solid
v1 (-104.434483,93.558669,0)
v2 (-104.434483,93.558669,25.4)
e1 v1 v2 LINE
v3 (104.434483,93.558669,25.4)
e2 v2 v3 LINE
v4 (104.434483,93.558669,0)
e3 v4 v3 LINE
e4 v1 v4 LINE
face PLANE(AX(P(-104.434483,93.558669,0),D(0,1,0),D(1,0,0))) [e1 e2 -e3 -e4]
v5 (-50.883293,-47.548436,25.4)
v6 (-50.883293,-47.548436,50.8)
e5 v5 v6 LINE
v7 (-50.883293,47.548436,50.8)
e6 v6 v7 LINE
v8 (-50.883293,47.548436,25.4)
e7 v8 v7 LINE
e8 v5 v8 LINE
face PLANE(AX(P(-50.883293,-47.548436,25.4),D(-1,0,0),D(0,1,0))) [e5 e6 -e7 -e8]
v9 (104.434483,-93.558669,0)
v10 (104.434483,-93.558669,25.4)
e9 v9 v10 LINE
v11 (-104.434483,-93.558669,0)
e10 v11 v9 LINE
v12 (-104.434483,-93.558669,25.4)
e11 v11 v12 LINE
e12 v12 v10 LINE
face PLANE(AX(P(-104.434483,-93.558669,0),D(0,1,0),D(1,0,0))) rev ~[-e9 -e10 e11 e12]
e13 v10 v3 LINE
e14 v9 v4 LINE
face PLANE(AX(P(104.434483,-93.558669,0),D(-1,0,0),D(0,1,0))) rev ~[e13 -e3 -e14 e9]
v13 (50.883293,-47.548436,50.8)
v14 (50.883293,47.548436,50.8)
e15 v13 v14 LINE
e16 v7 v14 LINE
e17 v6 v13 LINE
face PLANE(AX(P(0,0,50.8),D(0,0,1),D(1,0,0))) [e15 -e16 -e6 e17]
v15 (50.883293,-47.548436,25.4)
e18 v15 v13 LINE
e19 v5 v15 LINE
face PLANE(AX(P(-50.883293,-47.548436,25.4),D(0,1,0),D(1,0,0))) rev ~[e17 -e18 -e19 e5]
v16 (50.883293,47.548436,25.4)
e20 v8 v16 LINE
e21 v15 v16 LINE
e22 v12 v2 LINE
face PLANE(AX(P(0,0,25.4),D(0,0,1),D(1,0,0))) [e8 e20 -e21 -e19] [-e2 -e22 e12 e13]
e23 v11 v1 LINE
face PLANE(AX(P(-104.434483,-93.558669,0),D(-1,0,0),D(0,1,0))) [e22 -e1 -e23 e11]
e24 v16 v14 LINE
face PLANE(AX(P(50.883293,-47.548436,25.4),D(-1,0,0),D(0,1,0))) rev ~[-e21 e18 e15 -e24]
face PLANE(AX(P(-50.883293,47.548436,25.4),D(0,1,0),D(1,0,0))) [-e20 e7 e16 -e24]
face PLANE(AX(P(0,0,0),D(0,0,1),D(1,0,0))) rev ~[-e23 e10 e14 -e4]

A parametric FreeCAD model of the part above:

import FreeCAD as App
import Part
import Sketcher
from FreeCAD import Vector
Q = App.Units.Quantity

doc = App.newDocument("Part")
body = doc.addObject("PartDesign::Body", "Body")

# Sketch on XY plane
sketch1 = doc.addObject("Sketcher::SketchObject", "Sketch")
body.addObject(sketch1)
sketch1.AttachmentSupport = (doc.XY_Plane, [""])
sketch1.MapMode = "FlatFace"
sketch1.addGeometry([
    Part.LineSegment(Vector(-104, 94, 0), Vector(-104, -94, 0)),
    Part.LineSegment(Vector(-104, -94, 0), Vector(104, -94, 0)),
    Part.LineSegment(Vector(104, -94, 0), Vector(104, 94, 0)),
    Part.LineSegment(Vector(104, 94, 0), Vector(-104, 94, 0)),
], False)
sketch1.addConstraint([
    Sketcher.Constraint("Coincident", 0, 2, 1, 1),
    Sketcher.Constraint("Coincident", 1, 2, 2, 1),
    Sketcher.Constraint("Coincident", 2, 2, 3, 1),
    Sketcher.Constraint("Coincident", 3, 2, 0, 1),
    Sketcher.Constraint("Vertical", 0),
    Sketcher.Constraint("Horizontal", 1),
    Sketcher.Constraint("Vertical", 2),
    Sketcher.Constraint("Horizontal", 3),
    Sketcher.Constraint("Symmetric", 0, 2, 2, 2, -1, 1),
    Sketcher.Constraint("DistanceX", 1, 1, 1, 2, 208.868966),
    Sketcher.Constraint("DistanceY", 0, 2, 0, 1, 187.117338),
])
pad1 = doc.addObject("PartDesign::Pad", "Pad")
body.addObject(pad1)
pad1.Profile = sketch1
pad1.Length = Q("1 in")

# Sketch on XY plane
sketch2 = doc.addObject("Sketcher::SketchObject", "Sketch001")
body.addObject(sketch2)
sketch2.AttachmentSupport = (doc.XY_Plane, [""])
sketch2.MapMode = "FlatFace"
sketch2.AttachmentOffset = App.Placement(Vector(0, 0, 1 * 25.4), App.Rotation())
sketch2.addGeometry([
    Part.LineSegment(Vector(-51, 48, 0), Vector(-51, -48, 0)),
    Part.LineSegment(Vector(-51, -48, 0), Vector(51, -48, 0)),
    Part.LineSegment(Vector(51, -48, 0), Vector(51, 48, 0)),
    Part.LineSegment(Vector(51, 48, 0), Vector(-51, 48, 0)),
], False)
sketch2.addConstraint([
    Sketcher.Constraint("Coincident", 0, 2, 1, 1),
    Sketcher.Constraint("Coincident", 1, 2, 2, 1),
    Sketcher.Constraint("Coincident", 2, 2, 3, 1),
    Sketcher.Constraint("Coincident", 3, 2, 0, 1),
    Sketcher.Constraint("Vertical", 0),
    Sketcher.Constraint("Horizontal", 1),
    Sketcher.Constraint("Vertical", 2),
    Sketcher.Constraint("Horizontal", 3),
    Sketcher.Constraint("Symmetric", 0, 2, 2, 2, -1, 1),
    Sketcher.Constraint("DistanceX", 1, 1, 1, 2, 101.766586),
    Sketcher.Constraint("DistanceY", 0, 2, 0, 1, 95.096872),
])
pad2 = doc.addObject("PartDesign::Pad", "Pad001")
body.addObject(pad2)
pad2.Profile = sketch2
pad2.Length = Q("1 in")

doc.recompute()
